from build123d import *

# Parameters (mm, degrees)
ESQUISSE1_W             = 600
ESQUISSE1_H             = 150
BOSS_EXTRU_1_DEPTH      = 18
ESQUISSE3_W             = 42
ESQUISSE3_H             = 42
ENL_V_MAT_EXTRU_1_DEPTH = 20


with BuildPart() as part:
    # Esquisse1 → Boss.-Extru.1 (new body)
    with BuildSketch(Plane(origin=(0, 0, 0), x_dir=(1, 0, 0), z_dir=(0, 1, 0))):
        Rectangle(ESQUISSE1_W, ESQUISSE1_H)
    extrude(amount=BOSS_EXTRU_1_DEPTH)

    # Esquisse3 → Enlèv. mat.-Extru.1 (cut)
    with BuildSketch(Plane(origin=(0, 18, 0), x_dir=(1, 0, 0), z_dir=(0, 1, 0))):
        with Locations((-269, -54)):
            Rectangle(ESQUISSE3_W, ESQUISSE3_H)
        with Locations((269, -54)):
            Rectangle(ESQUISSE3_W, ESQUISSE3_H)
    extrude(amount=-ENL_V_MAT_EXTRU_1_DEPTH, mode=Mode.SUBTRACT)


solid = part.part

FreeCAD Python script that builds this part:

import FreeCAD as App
import Part
import Sketcher
from FreeCAD import Vector


def add_polygon(sketch, points):
    """Adds a closed chain of lines whose ends are joined by coincident constraints."""
    first, n = sketch.GeometryCount, len(points)
    for a, b in zip(points, points[1:] + points[:1]):
        sketch.addGeometry(Part.LineSegment(App.Vector(*a, 0), App.Vector(*b, 0)), False)
    for i in range(n):
        sketch.addConstraint(Sketcher.Constraint("Coincident", first + i, 2, first + (i + 1) % n, 1))

doc = App.newDocument("Part")
body = doc.addObject("PartDesign::Body", "Body")

sketch1 = body.newObject("Sketcher::SketchObject", "Sketch")
sketch1.AttachmentSupport = (doc.getObject("XZ_Plane"), [""])
sketch1.MapMode = "FlatFace"
add_polygon(sketch1, [(-300, -75), (-300, 75), (300, 75), (300, -75)])
sketch1.addConstraint([
    Sketcher.Constraint("Vertical", 0),
    Sketcher.Constraint("Horizontal", 1),
    Sketcher.Constraint("Vertical", 2),
    Sketcher.Constraint("Horizontal", 3),
    Sketcher.Constraint("Symmetric", 0, 2, 2, 2, -1, 1),
    Sketcher.Constraint("DistanceX", 1, 1, 1, 2, 600.0),
    Sketcher.Constraint("DistanceY", 0, 1, 0, 2, 150.0),
])
pad1 = body.newObject("PartDesign::Pad", "Pad")
pad1.Profile = sketch1
pad1.Length = 18
pad1.Reversed = True

sketch2 = body.newObject("Sketcher::SketchObject", "Sketch001")
sketch2.AttachmentSupport = (doc.getObject("XZ_Plane"), [""])
sketch2.MapMode = "FlatFace"
sketch2.AttachmentOffset = App.Placement(Vector(0, 0, -18), App.Rotation())
add_polygon(sketch2, [(-290, 33), (-290, 75), (-248, 75), (-248, 33)])
add_polygon(sketch2, [(248, 33), (248, 75), (290, 75), (290, 33)])
sketch2.addConstraint([
    Sketcher.Constraint("Vertical", 0),
    Sketcher.Constraint("Horizontal", 1),
    Sketcher.Constraint("Vertical", 2),
    Sketcher.Constraint("Horizontal", 3),
    Sketcher.Constraint("Vertical", 4),
    Sketcher.Constraint("Horizontal", 5),
    Sketcher.Constraint("Vertical", 6),
    Sketcher.Constraint("Horizontal", 7),
    Sketcher.Constraint("Symmetric", 1, 2, 4, 2, -2),
    Sketcher.Constraint("Symmetric", 3, 2, 6, 2, -2),
    Sketcher.Constraint("Equal", 7, 0),
    Sketcher.Constraint("DistanceX", 1, 1, 1, 2, 42.0),
    Sketcher.Constraint("DistanceX", 0, 2, -1, 1, 290.0),
    Sketcher.Constraint("DistanceY", -1, 1, 0, 2, 75.0),
])
pocket1 = body.newObject("PartDesign::Pocket", "Pocket")
pocket1.Profile = sketch2
pocket1.Length = 20
pocket1.Reversed = True

doc.recompute()
